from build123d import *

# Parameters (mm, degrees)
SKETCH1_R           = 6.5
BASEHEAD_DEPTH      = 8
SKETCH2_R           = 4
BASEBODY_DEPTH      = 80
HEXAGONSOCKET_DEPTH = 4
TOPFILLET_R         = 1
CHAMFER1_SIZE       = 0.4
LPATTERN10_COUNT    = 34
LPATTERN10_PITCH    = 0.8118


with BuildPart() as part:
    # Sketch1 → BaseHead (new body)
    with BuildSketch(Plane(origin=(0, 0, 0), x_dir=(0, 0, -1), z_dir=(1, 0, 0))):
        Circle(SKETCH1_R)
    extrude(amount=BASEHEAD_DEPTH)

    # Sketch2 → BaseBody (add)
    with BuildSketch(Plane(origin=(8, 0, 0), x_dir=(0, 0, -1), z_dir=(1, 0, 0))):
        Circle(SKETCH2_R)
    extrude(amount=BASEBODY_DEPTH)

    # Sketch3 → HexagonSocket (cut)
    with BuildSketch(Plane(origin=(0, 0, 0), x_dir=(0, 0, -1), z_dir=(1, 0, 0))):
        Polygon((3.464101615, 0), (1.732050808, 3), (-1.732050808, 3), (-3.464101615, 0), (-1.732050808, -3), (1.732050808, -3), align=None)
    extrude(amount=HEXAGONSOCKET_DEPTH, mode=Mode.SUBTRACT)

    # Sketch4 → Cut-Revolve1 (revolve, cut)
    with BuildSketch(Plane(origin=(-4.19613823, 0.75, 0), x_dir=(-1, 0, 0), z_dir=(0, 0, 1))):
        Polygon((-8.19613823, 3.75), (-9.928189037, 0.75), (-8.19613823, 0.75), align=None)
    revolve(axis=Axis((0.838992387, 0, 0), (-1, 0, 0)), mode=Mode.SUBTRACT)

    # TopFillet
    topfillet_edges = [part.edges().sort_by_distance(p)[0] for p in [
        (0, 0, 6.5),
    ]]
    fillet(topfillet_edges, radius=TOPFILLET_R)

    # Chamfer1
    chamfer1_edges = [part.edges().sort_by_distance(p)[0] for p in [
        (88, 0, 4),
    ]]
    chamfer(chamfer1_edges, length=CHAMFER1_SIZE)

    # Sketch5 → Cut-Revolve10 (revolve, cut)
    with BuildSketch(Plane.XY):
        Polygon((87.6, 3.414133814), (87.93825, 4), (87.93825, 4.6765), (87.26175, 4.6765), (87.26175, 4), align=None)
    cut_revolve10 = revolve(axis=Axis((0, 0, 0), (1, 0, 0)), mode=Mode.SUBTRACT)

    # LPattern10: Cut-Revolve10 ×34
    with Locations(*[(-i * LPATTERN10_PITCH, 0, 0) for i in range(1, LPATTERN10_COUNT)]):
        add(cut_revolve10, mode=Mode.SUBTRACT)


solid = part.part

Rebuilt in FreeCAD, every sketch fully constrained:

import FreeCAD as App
import Part
import Sketcher

V = App.Vector
Q = App.Units.Quantity


def edges_at(feature, points):
    """Names of the edges that pass closest to the given points."""
    edges = feature.Shape.Edges
    near = lambda p: min(range(len(edges)), key=lambda i: edges[i].distToShape(Part.Vertex(*p))[0])
    return sorted({f"Edge{near(p) + 1}" for p in points})

doc = App.newDocument("Part")
body = doc.addObject("PartDesign::Body", "Body")

sketch1 = body.newObject("Sketcher::SketchObject", "Sketch")
sketch1.AttachmentSupport = (doc.getObject("YZ_Plane"), [""])
sketch1.MapMode = "FlatFace"
sketch1.addGeometry(Part.Circle(V(0, 0, 0), V(0, 0, 1), 6), False)
sketch1.addConstraint([
    Sketcher.Constraint("Coincident", 0, 3, -1, 1),
    Sketcher.Constraint("Diameter", 0, 13.0),
])
pad1 = body.newObject("PartDesign::Pad", "Pad")
pad1.Profile = sketch1
pad1.Length = 8

sketch2 = body.newObject("Sketcher::SketchObject", "Sketch001")
sketch2.AttachmentSupport = (doc.getObject("YZ_Plane"), [""])
sketch2.MapMode = "FlatFace"
sketch2.AttachmentOffset = App.Placement(V(0, 0, 8), App.Rotation())
sketch2.addGeometry(Part.Circle(V(0, 0, 0), V(0, 0, 1), 4), False)
sketch2.addConstraint([
    Sketcher.Constraint("Coincident", 0, 3, -1, 1),
    Sketcher.Constraint("Diameter", 0, 8.0),
])
pad2 = body.newObject("PartDesign::Pad", "Pad001")
pad2.Profile = sketch2
pad2.Length = 80

sketch3 = body.newObject("Sketcher::SketchObject", "Sketch002")
sketch3.AttachmentSupport = (doc.getObject("YZ_Plane"), [""])
sketch3.MapMode = "FlatFace"
sketch3.addGeometry([
    Part.LineSegment(V(0, -3.5, 0), V(3, -1.7, 0)),
    Part.LineSegment(V(3, -1.7, 0), V(3, 1.7, 0)),
    Part.LineSegment(V(3, 1.7, 0), V(0, 3.5, 0)),
    Part.LineSegment(V(0, 3.5, 0), V(-3, 1.7, 0)),
    Part.LineSegment(V(-3, 1.7, 0), V(-3, -1.7, 0)),
    Part.LineSegment(V(-3, -1.7, 0), V(0, -3.5, 0)),
], False)
sketch3.addConstraint([
    Sketcher.Constraint("Coincident", 0, 2, 1, 1),
    Sketcher.Constraint("Coincident", 1, 2, 2, 1),
    Sketcher.Constraint("Coincident", 2, 2, 3, 1),
    Sketcher.Constraint("Coincident", 3, 2, 4, 1),
    Sketcher.Constraint("Coincident", 4, 2, 5, 1),
    Sketcher.Constraint("Coincident", 5, 2, 0, 1),
    Sketcher.Constraint("Vertical", 1),
    Sketcher.Constraint("Vertical", 4),
    Sketcher.Constraint("Symmetric", 0, 2, 3, 2, -1, 1),
    Sketcher.Constraint("Symmetric", 2, 2, 5, 2, -1, 1),
    Sketcher.Constraint("PointOnObject", 2, 2, -2),
    Sketcher.Constraint("Parallel", 2, 5),
    Sketcher.Constraint("Horizontal", 1, 2, 3, 2),
    Sketcher.Constraint("Angle", 0, Q("30 deg")),
    Sketcher.Constraint("DistanceX", -1, 1, 0, 2, 3.0),
    Sketcher.Constraint("DistanceY", 1, 1, 1, 2, 3.464102),
])
pocket1 = body.newObject("PartDesign::Pocket", "Pocket")
pocket1.Profile = sketch3
pocket1.Length = 4
pocket1.Reversed = True

sketch4 = body.newObject("Sketcher::SketchObject", "Sketch003")
sketch4.AttachmentSupport = (doc.getObject("XY_Plane"), [""])
sketch4.MapMode = "FlatFace"
sketch4.addGeometry([
    Part.LineSegment(V(4, -3, 0), V(5.7, 0, 0)),
    Part.LineSegment(V(5.7, 0, 0), V(4, 0, 0)),
    Part.LineSegment(V(4, 0, 0), V(4, -3, 0)),
], False)
sketch4.addConstraint([
    Sketcher.Constraint("Coincident", 0, 2, 1, 1),
    Sketcher.Constraint("Coincident", 1, 2, 2, 1),
    Sketcher.Constraint("Coincident", 2, 2, 0, 1),
    Sketcher.Constraint("Horizontal", 1),
    Sketcher.Constraint("Vertical", 2),
    Sketcher.Constraint("PointOnObject", 0, 2, -1),
    Sketcher.Constraint("DistanceY", 2, 2, 2, 1, 3.0),
    Sketcher.Constraint("Angle", 0, Q("60 deg")),
    Sketcher.Constraint("DistanceX", -1, 1, 1, 2, 4.0),
])
groove = body.newObject("PartDesign::Groove", "Groove")
groove.Profile = sketch4
groove.ReferenceAxis = (sketch4, ["H_Axis"])
groove.Angle = 360
doc.recompute()

fillet = body.newObject("PartDesign::Fillet", "Fillet")
fillet.Base = (groove, edges_at(groove, [(0, 0, 6.5)]))
fillet.Radius = 1
doc.recompute()

chamfer = body.newObject("PartDesign::Chamfer", "Chamfer")
chamfer.Base = (fillet, edges_at(fillet, [(88, 0, 4)]))
chamfer.Size = 0.4

sketch5 = body.newObject("Sketcher::SketchObject", "Sketch004")
sketch5.AttachmentSupport = (doc.getObject("XY_Plane"), [""])
sketch5.MapMode = "FlatFace"
sketch5.addGeometry([
    Part.LineSegment(V(87.6, 3.4, 0), V(87.9, 4, 0)),
    Part.LineSegment(V(87.9, 4, 0), V(87.9, 4.7, 0)),
    Part.LineSegment(V(87.9, 4.7, 0), V(87.3, 4.7, 0)),
    Part.LineSegment(V(87.3, 4.7, 0), V(87.3, 4, 0)),
    Part.LineSegment(V(87.3, 4, 0), V(87.6, 3.4, 0)),
], False)
sketch5.addConstraint([
    Sketcher.Constraint("Coincident", 0, 2, 1, 1),
    Sketcher.Constraint("Coincident", 1, 2, 2, 1),
    Sketcher.Constraint("Coincident", 2, 2, 3, 1),
    Sketcher.Constraint("Coincident", 3, 2, 4, 1),
    Sketcher.Constraint("Coincident", 4, 2, 0, 1),
    Sketcher.Constraint("Vertical", 1),
    Sketcher.Constraint("Horizontal", 2),
    Sketcher.Constraint("Vertical", 3),
    Sketcher.Constraint("Horizontal", 0, 2, 3, 2),
    Sketcher.Constraint("Equal", 2, 1),
    Sketcher.Constraint("Equal", 0, 4),
    Sketcher.Constraint("Angle", 0, Q("60 deg")),
    Sketcher.Constraint("DistanceY", -1, 1, 0, 2, 4.0),
    Sketcher.Constraint("DistanceX", -1, 1, 4, 2, 87.6),
    Sketcher.Constraint("DistanceX", 2, 2, 2, 1, 0.6765),
])
groove2 = body.newObject("PartDesign::Groove", "Groove001")
groove2.Profile = sketch5
groove2.ReferenceAxis = (sketch5, ["H_Axis"])
groove2.Angle = 360
doc.recompute()

linearpattern = body.newObject("PartDesign::LinearPattern", "LinearPattern")
linearpattern.Originals = [groove2]
linearpattern.Direction = (doc.getObject("X_Axis"), [""])
linearpattern.Mode = "offset"
linearpattern.Offset = 0.8118
linearpattern.Occurrences = 34
linearpattern.Reversed = True
body.Tip = linearpattern

doc.recompute()
